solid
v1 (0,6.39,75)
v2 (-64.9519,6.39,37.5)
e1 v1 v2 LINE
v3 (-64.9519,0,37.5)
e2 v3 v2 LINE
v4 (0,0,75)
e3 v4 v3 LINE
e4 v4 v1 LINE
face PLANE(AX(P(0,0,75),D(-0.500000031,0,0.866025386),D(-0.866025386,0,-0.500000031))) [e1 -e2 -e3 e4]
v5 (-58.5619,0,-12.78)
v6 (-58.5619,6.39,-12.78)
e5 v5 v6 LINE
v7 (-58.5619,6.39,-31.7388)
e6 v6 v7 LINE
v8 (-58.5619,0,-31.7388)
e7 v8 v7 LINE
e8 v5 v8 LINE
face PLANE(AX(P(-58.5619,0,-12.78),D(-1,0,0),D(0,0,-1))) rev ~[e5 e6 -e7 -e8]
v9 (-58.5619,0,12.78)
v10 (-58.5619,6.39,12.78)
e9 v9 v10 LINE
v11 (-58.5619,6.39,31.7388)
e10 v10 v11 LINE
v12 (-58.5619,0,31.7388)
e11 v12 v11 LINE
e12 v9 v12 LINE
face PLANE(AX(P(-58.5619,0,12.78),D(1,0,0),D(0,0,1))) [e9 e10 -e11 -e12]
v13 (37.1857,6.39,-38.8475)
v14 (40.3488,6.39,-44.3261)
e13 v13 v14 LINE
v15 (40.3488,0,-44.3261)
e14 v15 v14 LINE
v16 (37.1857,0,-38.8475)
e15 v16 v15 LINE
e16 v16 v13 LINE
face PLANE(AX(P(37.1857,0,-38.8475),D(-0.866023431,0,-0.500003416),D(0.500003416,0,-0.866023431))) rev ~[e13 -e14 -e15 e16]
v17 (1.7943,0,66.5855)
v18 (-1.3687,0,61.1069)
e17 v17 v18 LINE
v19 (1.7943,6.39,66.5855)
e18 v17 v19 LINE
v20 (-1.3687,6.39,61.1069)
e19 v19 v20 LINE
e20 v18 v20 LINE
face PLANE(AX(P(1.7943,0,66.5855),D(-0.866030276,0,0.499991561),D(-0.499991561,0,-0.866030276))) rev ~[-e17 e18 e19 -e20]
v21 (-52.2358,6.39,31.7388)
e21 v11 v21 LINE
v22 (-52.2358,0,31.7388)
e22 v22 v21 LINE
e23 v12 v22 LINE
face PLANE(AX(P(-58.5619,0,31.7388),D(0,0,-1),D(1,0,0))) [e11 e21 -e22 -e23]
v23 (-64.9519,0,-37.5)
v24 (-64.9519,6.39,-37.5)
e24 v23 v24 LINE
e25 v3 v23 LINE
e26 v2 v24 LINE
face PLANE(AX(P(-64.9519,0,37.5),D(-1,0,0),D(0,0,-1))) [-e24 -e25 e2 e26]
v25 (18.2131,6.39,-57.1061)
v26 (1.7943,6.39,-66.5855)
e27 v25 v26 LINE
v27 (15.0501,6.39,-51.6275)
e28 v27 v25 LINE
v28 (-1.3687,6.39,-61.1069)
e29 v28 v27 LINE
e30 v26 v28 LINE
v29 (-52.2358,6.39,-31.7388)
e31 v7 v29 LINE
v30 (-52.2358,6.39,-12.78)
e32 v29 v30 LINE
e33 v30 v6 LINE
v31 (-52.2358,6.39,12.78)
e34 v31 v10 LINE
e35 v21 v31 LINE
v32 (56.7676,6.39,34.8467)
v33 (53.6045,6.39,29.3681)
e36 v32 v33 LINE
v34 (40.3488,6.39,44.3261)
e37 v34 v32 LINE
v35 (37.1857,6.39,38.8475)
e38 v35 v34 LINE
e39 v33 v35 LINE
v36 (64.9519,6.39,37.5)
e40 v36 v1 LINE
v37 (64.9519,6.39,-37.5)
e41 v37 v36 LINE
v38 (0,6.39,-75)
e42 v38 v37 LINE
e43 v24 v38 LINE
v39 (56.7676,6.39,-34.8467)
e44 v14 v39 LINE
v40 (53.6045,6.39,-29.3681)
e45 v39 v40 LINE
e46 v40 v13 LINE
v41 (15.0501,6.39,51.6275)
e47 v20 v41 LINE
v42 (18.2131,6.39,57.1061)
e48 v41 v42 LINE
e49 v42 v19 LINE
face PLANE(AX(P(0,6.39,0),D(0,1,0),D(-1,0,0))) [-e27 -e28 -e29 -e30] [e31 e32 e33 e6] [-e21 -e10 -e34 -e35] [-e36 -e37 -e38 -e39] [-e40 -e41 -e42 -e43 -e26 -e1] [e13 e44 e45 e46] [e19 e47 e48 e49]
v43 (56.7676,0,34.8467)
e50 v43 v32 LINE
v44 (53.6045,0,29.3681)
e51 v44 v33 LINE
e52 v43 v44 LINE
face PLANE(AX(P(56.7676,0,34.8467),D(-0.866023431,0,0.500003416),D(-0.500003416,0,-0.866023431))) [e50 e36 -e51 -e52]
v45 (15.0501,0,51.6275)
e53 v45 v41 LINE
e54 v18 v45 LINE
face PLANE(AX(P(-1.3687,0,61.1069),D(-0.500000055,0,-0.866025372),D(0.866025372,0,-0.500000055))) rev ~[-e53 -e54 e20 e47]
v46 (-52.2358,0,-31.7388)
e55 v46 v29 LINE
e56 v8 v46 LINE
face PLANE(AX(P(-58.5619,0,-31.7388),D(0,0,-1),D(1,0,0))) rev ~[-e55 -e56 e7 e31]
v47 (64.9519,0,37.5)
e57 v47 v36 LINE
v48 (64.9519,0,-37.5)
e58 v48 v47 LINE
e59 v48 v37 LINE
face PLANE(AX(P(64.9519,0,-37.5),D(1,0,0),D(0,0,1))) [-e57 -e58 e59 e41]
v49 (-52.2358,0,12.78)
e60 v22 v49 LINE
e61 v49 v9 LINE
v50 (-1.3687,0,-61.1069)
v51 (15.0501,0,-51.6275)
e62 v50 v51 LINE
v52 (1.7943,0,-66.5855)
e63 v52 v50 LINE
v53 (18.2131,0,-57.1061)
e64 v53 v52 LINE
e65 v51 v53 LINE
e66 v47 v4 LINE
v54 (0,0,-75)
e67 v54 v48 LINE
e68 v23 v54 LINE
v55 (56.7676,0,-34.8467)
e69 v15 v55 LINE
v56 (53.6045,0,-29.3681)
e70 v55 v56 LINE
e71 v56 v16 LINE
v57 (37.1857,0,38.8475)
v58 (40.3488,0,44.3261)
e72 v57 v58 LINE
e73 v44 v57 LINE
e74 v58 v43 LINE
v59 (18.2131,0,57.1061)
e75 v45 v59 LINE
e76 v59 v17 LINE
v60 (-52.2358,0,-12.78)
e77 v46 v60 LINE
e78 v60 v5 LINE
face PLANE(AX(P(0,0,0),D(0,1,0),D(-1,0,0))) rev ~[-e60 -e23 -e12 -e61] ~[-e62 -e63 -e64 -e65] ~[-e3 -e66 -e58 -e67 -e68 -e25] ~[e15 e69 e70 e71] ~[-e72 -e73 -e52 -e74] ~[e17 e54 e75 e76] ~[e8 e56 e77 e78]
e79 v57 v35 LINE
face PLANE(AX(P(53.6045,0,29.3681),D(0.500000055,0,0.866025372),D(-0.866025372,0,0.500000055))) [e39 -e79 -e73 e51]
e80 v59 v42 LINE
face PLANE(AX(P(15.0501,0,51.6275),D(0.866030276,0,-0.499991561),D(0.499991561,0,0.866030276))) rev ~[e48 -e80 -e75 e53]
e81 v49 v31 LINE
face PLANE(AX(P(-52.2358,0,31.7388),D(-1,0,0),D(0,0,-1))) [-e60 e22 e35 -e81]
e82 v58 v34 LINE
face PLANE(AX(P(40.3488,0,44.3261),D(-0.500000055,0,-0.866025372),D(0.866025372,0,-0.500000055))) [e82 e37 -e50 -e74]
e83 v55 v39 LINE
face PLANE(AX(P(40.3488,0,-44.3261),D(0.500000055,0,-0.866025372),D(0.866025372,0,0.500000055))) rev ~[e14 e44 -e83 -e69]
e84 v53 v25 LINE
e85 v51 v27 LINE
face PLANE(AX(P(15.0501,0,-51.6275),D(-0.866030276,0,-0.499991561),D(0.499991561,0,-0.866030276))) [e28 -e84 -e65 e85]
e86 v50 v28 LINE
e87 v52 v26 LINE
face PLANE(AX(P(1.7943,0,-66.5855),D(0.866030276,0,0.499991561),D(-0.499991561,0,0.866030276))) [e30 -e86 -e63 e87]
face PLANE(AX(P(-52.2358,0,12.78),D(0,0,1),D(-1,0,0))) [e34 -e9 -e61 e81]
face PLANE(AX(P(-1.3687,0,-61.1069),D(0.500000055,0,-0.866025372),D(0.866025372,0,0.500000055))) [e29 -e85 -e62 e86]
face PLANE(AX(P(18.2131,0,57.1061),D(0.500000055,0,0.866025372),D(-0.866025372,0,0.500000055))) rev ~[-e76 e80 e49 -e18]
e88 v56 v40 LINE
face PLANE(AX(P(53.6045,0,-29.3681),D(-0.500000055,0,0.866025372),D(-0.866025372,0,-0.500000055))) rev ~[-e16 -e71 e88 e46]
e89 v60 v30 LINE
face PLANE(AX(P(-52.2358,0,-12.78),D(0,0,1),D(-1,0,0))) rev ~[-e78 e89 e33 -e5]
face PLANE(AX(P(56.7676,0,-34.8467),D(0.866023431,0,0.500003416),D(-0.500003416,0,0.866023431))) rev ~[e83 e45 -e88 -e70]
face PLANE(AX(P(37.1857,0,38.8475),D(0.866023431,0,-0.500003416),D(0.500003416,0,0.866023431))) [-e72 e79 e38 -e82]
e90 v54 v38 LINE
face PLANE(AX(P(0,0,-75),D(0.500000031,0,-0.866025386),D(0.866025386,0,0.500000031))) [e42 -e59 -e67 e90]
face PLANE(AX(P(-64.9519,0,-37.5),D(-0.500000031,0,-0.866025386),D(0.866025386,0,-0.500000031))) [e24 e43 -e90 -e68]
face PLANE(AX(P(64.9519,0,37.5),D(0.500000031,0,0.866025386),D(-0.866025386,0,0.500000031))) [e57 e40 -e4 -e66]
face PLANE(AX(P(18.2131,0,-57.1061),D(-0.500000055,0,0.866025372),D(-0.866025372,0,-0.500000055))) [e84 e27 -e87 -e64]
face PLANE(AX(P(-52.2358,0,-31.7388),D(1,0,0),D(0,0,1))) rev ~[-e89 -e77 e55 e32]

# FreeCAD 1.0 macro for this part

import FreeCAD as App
import Part
import Sketcher
Q = App.Units.Quantity

doc = App.newDocument("Part")
body = doc.addObject("PartDesign::Body", "Body")

sketch1 = doc.addObject("Sketcher::SketchObject", "Sketch")
body.addObject(sketch1)
sketch1.AttachmentSupport = (doc.XZ_Plane, [""])
sketch1.MapMode = "FlatFace"
sketch1.addGeometry(Part.LineSegment(App.Vector(0, -75, 0), App.Vector(-65, -38, 0)), False)
sketch1.addGeometry(Part.LineSegment(App.Vector(-65, -38, 0), App.Vector(-65, 38, 0)), False)
sketch1.addGeometry(Part.LineSegment(App.Vector(-65, 38, 0), App.Vector(0, 75, 0)), False)
sketch1.addGeometry(Part.LineSegment(App.Vector(0, 75, 0), App.Vector(65, 38, 0)), False)
sketch1.addGeometry(Part.LineSegment(App.Vector(65, 38, 0), App.Vector(65, -38, 0)), False)
sketch1.addGeometry(Part.LineSegment(App.Vector(65, -38, 0), App.Vector(0, -75, 0)), False)
sketch1.addGeometry(Part.LineSegment(App.Vector(2, -67, 0), App.Vector(18, -57, 0)), False)
sketch1.addGeometry(Part.LineSegment(App.Vector(18, -57, 0), App.Vector(15, -52, 0)), False)
sketch1.addGeometry(Part.LineSegment(App.Vector(15, -52, 0), App.Vector(-1, -61, 0)), False)
sketch1.addGeometry(Part.LineSegment(App.Vector(-1, -61, 0), App.Vector(2, -67, 0)), False)
sketch1.addGeometry(Part.LineSegment(App.Vector(54, -29, 0), App.Vector(37, -39, 0)), False)
sketch1.addGeometry(Part.LineSegment(App.Vector(37, -39, 0), App.Vector(40, -44, 0)), False)
sketch1.addGeometry(Part.LineSegment(App.Vector(40, -44, 0), App.Vector(57, -35, 0)), False)
sketch1.addGeometry(Part.LineSegment(App.Vector(57, -35, 0), App.Vector(54, -29, 0)), False)
sketch1.addGeometry(Part.LineSegment(App.Vector(-59, -13, 0), App.Vector(-59, -32, 0)), False)
sketch1.addGeometry(Part.LineSegment(App.Vector(-59, -32, 0), App.Vector(-52, -32, 0)), False)
sketch1.addGeometry(Part.LineSegment(App.Vector(-52, -32, 0), App.Vector(-52, -13, 0)), False)
sketch1.addGeometry(Part.LineSegment(App.Vector(-52, -13, 0), App.Vector(-59, -13, 0)), False)
sketch1.addGeometry(Part.LineSegment(App.Vector(57, 35, 0), App.Vector(40, 44, 0)), False)
sketch1.addGeometry(Part.LineSegment(App.Vector(40, 44, 0), App.Vector(37, 39, 0)), False)
sketch1.addGeometry(Part.LineSegment(App.Vector(37, 39, 0), App.Vector(54, 29, 0)), False)
sketch1.addGeometry(Part.LineSegment(App.Vector(54, 29, 0), App.Vector(57, 35, 0)), False)
sketch1.addGeometry(Part.LineSegment(App.Vector(-1, 61, 0), App.Vector(15, 52, 0)), False)
sketch1.addGeometry(Part.LineSegment(App.Vector(15, 52, 0), App.Vector(18, 57, 0)), False)
sketch1.addGeometry(Part.LineSegment(App.Vector(18, 57, 0), App.Vector(2, 67, 0)), False)
sketch1.addGeometry(Part.LineSegment(App.Vector(2, 67, 0), App.Vector(-1, 61, 0)), False)
sketch1.addGeometry(Part.LineSegment(App.Vector(-52, 32, 0), App.Vector(-59, 32, 0)), False)
sketch1.addGeometry(Part.LineSegment(App.Vector(-59, 32, 0), App.Vector(-59, 13, 0)), False)
sketch1.addGeometry(Part.LineSegment(App.Vector(-59, 13, 0), App.Vector(-52, 13, 0)), False)
sketch1.addGeometry(Part.LineSegment(App.Vector(-52, 13, 0), App.Vector(-52, 32, 0)), False)
sketch1.addConstraint(Sketcher.Constraint("Coincident", 0, 2, 1, 1))
sketch1.addConstraint(Sketcher.Constraint("Coincident", 1, 2, 2, 1))
sketch1.addConstraint(Sketcher.Constraint("Coincident", 2, 2, 3, 1))
sketch1.addConstraint(Sketcher.Constraint("Coincident", 3, 2, 4, 1))
sketch1.addConstraint(Sketcher.Constraint("Coincident", 4, 2, 5, 1))
sketch1.addConstraint(Sketcher.Constraint("Coincident", 5, 2, 0, 1))
sketch1.addConstraint(Sketcher.Constraint("Coincident", 6, 2, 7, 1))
sketch1.addConstraint(Sketcher.Constraint("Coincident", 7, 2, 8, 1))
sketch1.addConstraint(Sketcher.Constraint("Coincident", 8, 2, 9, 1))
sketch1.addConstraint(Sketcher.Constraint("Coincident", 9, 2, 6, 1))
sketch1.addConstraint(Sketcher.Constraint("Coincident", 10, 2, 11, 1))
sketch1.addConstraint(Sketcher.Constraint("Coincident", 11, 2, 12, 1))
sketch1.addConstraint(Sketcher.Constraint("Coincident", 12, 2, 13, 1))
sketch1.addConstraint(Sketcher.Constraint("Coincident", 13, 2, 10, 1))
sketch1.addConstraint(Sketcher.Constraint("Coincident", 14, 2, 15, 1))
sketch1.addConstraint(Sketcher.Constraint("Coincident", 15, 2, 16, 1))
sketch1.addConstraint(Sketcher.Constraint("Coincident", 16, 2, 17, 1))
sketch1.addConstraint(Sketcher.Constraint("Coincident", 17, 2, 14, 1))
sketch1.addConstraint(Sketcher.Constraint("Coincident", 18, 2, 19, 1))
sketch1.addConstraint(Sketcher.Constraint("Coincident", 19, 2, 20, 1))
sketch1.addConstraint(Sketcher.Constraint("Coincident", 20, 2, 21, 1))
sketch1.addConstraint(Sketcher.Constraint("Coincident", 21, 2, 18, 1))
sketch1.addConstraint(Sketcher.Constraint("Coincident", 22, 2, 23, 1))
sketch1.addConstraint(Sketcher.Constraint("Coincident", 23, 2, 24, 1))
sketch1.addConstraint(Sketcher.Constraint("Coincident", 24, 2, 25, 1))
sketch1.addConstraint(Sketcher.Constraint("Coincident", 25, 2, 22, 1))
sketch1.addConstraint(Sketcher.Constraint("Coincident", 26, 2, 27, 1))
sketch1.addConstraint(Sketcher.Constraint("Coincident", 27, 2, 28, 1))
sketch1.addConstraint(Sketcher.Constraint("Coincident", 28, 2, 29, 1))
sketch1.addConstraint(Sketcher.Constraint("Coincident", 29, 2, 26, 1))
sketch1.addConstraint(Sketcher.Constraint("Vertical", 1))
sketch1.addConstraint(Sketcher.Constraint("Vertical", 4))
sketch1.addConstraint(Sketcher.Constraint("Vertical", 14))
sketch1.addConstraint(Sketcher.Constraint("Horizontal", 15))
sketch1.addConstraint(Sketcher.Constraint("Vertical", 16))
sketch1.addConstraint(Sketcher.Constraint("Horizontal", 17))
sketch1.addConstraint(Sketcher.Constraint("Horizontal", 26))
sketch1.addConstraint(Sketcher.Constraint("Vertical", 27))
sketch1.addConstraint(Sketcher.Constraint("Horizontal", 28))
sketch1.addConstraint(Sketcher.Constraint("Vertical", 29))
sketch1.addConstraint(Sketcher.Constraint("Symmetric", 0, 2, 3, 2, -1, 1))
sketch1.addConstraint(Sketcher.Constraint("Symmetric", 2, 2, 5, 2, -1, 1))
sketch1.addConstraint(Sketcher.Constraint("Symmetric", 11, 2, 18, 2, -1))
sketch1.addConstraint(Sketcher.Constraint("Symmetric", 10, 2, 19, 2, -1))
sketch1.addConstraint(Sketcher.Constraint("Symmetric", 13, 2, 20, 2, -1))
sketch1.addConstraint(Sketcher.Constraint("Symmetric", 12, 2, 21, 2, -1))
sketch1.addConstraint(Sketcher.Constraint("Symmetric", 7, 2, 22, 2, -1))
sketch1.addConstraint(Sketcher.Constraint("Symmetric", 6, 2, 23, 2, -1))
sketch1.addConstraint(Sketcher.Constraint("Symmetric", 9, 2, 24, 2, -1))
sketch1.addConstraint(Sketcher.Constraint("Symmetric", 8, 2, 25, 2, -1))
sketch1.addConstraint(Sketcher.Constraint("Symmetric", 14, 2, 26, 2, -1))
sketch1.addConstraint(Sketcher.Constraint("Symmetric", 16, 2, 28, 2, -1))
sketch1.addConstraint(Sketcher.Constraint("PointOnObject", 2, 2, -2))
sketch1.addConstraint(Sketcher.Constraint("Parallel", 2, 5))
sketch1.addConstraint(Sketcher.Constraint("Parallel", 5, 6))
sketch1.addConstraint(Sketcher.Constraint("Perpendicular", 6, 7))
sketch1.addConstraint(Sketcher.Constraint("Perpendicular", 7, 8))
sketch1.addConstraint(Sketcher.Constraint("Perpendicular", 8, 9))
sketch1.addConstraint(Sketcher.Constraint("Perpendicular", 9, 10))
sketch1.addConstraint(Sketcher.Constraint("Perpendicular", 10, 11))
sketch1.addConstraint(Sketcher.Constraint("Perpendicular", 11, 12))
sketch1.addConstraint(Sketcher.Constraint("Perpendicular", 12, 13))
sketch1.addConstraint(Sketcher.Constraint("Parallel", 3, 18))
sketch1.addConstraint(Sketcher.Constraint("Equal", 8, 10))
sketch1.addConstraint(Sketcher.Constraint("Equal", 9, 11))
sketch1.addConstraint(Sketcher.Constraint("Angle", 0, Q("150 deg")))
sketch1.addConstraint(Sketcher.Constraint("DistanceY", 5, 2, 2, 2, 150.0))
sketch1.addConstraint(Sketcher.Constraint("DistanceX", 15, 1, 15, 2, 6.326))
sketch1.addConstraint(Sketcher.Constraint("DistanceY", 1, 1, 1, 2, 75.0))
sketch1.addConstraint(Sketcher.Constraint("DistanceY", 16, 2, -1, 1, 12.78))
sketch1.addConstraint(Sketcher.Constraint("DistanceY", 7, 2, 10, 2, 12.78))
sketch1.addConstraint(Sketcher.Constraint("DistanceX", 0, 2, 14, 2, 6.39))
sketch1.addConstraint(Sketcher.Constraint("Distance", 7, 6.326))
sketch1.addConstraint(Sketcher.Constraint("DistanceY", 14, 2, 14, 1, 18.9588))
sketch1.addConstraint(Sketcher.Constraint("Distance", 6, 18.9588))
sketch1.addConstraint(Sketcher.Constraint("DistanceX", -1, 1, 7, 2, 15.05))
sketch1.addConstraint(Sketcher.Constraint("DistanceY", 6, 2, -1, 1, 57.106))
sketch1.addConstraint(Sketcher.Constraint("DistanceX", 11, 2, 4, 2, 24.603))
pad1 = doc.addObject("PartDesign::Pad", "Pad")
body.addObject(pad1)
pad1.Profile = sketch1
pad1.Length = 6.39
pad1.Reversed = True

doc.recompute()
